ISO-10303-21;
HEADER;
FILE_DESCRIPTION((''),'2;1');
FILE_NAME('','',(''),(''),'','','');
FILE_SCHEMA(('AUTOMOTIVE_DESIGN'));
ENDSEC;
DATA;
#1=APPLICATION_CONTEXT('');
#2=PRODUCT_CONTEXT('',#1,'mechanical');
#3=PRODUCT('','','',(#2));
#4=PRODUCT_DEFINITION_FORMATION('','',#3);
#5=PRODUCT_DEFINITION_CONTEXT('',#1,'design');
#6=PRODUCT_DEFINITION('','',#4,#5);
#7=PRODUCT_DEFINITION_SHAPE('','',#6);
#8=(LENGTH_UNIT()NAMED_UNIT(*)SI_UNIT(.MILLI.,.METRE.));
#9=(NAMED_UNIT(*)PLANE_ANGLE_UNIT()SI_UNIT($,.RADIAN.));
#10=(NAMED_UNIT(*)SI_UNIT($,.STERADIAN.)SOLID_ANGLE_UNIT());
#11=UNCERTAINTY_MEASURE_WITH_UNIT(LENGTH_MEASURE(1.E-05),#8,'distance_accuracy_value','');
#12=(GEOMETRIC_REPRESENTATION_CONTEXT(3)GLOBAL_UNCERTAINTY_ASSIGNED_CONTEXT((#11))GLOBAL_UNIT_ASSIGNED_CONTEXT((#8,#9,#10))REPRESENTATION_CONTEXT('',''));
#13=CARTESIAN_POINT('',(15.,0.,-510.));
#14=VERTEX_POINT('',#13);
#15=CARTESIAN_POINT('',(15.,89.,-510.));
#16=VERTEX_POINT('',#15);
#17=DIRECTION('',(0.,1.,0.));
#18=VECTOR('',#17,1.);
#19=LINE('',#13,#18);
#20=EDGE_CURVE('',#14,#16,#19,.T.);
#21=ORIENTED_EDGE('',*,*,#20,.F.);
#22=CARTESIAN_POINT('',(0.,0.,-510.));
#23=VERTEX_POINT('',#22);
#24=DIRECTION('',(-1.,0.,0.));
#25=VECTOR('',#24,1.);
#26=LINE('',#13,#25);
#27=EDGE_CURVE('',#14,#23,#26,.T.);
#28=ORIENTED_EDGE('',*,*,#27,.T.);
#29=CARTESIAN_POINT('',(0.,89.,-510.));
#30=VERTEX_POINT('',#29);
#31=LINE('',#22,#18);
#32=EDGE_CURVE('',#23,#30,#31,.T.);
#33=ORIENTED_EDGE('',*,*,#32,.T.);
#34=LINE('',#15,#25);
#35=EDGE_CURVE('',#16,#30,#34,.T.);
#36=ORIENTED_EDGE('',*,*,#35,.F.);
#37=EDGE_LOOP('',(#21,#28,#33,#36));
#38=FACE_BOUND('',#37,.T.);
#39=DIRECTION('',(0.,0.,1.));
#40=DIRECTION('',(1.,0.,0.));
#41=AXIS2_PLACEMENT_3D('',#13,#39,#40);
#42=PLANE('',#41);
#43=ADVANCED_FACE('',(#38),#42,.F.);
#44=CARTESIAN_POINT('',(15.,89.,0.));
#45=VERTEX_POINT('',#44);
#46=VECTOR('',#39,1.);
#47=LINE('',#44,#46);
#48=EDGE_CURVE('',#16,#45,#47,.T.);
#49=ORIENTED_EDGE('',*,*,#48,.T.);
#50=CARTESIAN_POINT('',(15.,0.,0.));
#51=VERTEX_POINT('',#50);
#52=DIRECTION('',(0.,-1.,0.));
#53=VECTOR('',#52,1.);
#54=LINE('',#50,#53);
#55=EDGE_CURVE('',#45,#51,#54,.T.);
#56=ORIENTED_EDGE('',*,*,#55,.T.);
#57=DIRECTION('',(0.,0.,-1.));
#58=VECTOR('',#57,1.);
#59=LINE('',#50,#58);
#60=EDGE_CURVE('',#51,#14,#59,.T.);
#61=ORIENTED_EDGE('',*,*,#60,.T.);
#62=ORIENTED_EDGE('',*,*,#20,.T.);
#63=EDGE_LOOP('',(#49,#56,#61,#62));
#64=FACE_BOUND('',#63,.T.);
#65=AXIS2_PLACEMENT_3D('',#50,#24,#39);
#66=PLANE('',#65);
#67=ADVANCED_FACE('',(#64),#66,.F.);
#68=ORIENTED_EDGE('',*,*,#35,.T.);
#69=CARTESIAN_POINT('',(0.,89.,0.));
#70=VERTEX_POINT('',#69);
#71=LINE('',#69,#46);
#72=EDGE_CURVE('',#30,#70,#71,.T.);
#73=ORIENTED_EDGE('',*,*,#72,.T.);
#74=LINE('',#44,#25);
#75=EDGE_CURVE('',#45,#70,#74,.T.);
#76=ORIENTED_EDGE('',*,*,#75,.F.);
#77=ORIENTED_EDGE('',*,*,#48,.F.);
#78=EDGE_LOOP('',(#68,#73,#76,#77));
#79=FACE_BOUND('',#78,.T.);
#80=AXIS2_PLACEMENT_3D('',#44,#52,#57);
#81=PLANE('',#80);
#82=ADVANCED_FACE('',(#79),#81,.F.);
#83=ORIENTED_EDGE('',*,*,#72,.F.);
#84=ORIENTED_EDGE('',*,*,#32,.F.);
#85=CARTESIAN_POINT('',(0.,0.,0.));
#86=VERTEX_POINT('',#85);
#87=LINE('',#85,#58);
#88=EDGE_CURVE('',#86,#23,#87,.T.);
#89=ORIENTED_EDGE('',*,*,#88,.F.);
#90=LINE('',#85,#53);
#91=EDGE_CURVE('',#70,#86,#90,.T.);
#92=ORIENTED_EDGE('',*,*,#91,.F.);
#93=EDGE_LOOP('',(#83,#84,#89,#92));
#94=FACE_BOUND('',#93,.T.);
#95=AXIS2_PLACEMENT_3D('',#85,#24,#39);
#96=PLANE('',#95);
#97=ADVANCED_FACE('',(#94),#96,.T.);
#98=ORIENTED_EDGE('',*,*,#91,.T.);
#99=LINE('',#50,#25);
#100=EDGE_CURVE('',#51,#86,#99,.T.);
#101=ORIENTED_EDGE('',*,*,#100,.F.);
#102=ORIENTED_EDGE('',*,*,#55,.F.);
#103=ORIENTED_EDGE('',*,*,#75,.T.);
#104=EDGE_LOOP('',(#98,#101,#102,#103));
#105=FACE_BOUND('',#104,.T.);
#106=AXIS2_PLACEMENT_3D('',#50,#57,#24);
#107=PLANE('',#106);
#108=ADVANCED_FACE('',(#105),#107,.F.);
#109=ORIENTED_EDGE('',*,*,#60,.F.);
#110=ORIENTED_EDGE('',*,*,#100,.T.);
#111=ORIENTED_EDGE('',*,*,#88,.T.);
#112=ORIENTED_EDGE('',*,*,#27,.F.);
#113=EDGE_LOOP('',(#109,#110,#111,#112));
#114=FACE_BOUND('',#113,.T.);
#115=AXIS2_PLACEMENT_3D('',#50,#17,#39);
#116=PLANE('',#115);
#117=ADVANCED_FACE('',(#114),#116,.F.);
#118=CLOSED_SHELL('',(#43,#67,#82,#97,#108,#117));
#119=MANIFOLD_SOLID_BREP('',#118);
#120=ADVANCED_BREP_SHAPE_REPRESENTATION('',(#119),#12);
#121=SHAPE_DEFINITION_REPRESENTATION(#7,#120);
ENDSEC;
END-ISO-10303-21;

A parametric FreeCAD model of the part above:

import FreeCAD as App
import Part
import Sketcher
Q = App.Units.Quantity


def add_polygon(sketch, points):
    """Adds a closed chain of lines whose ends are joined by coincident constraints."""
    first, n = sketch.GeometryCount, len(points)
    for a, b in zip(points, points[1:] + points[:1]):
        sketch.addGeometry(Part.LineSegment(App.Vector(*a, 0), App.Vector(*b, 0)), False)
    for i in range(n):
        sketch.addConstraint(Sketcher.Constraint("Coincident", first + i, 2, first + (i + 1) % n, 1))

doc = App.newDocument("Part")
body = doc.addObject("PartDesign::Body", "Body")

# Sketch on YZ plane
sketch1 = body.newObject("Sketcher::SketchObject", "Sketch")
sketch1.AttachmentSupport = (doc.getObject("YZ_Plane"), [""])
sketch1.MapMode = "FlatFace"
add_polygon(sketch1, [(89, 0), (0, 0), (0, -510), (89, -510)])  # lines 0-3
sketch1.addConstraint([
    Sketcher.Constraint("Horizontal", 0),
    Sketcher.Constraint("Vertical", 1),
    Sketcher.Constraint("Horizontal", 2),
    Sketcher.Constraint("Vertical", 3),
    Sketcher.Constraint("Coincident", 0, 2, -1, 1),
    Sketcher.Constraint("DistanceX", 0, 2, 0, 1, Q("89 mm")),
    Sketcher.Constraint("DistanceY", 1, 2, 1, 1, Q("510 mm")),
])
pad1 = body.newObject("PartDesign::Pad", "Pad")
pad1.Profile = sketch1
pad1.Length = 15

doc.recompute()
